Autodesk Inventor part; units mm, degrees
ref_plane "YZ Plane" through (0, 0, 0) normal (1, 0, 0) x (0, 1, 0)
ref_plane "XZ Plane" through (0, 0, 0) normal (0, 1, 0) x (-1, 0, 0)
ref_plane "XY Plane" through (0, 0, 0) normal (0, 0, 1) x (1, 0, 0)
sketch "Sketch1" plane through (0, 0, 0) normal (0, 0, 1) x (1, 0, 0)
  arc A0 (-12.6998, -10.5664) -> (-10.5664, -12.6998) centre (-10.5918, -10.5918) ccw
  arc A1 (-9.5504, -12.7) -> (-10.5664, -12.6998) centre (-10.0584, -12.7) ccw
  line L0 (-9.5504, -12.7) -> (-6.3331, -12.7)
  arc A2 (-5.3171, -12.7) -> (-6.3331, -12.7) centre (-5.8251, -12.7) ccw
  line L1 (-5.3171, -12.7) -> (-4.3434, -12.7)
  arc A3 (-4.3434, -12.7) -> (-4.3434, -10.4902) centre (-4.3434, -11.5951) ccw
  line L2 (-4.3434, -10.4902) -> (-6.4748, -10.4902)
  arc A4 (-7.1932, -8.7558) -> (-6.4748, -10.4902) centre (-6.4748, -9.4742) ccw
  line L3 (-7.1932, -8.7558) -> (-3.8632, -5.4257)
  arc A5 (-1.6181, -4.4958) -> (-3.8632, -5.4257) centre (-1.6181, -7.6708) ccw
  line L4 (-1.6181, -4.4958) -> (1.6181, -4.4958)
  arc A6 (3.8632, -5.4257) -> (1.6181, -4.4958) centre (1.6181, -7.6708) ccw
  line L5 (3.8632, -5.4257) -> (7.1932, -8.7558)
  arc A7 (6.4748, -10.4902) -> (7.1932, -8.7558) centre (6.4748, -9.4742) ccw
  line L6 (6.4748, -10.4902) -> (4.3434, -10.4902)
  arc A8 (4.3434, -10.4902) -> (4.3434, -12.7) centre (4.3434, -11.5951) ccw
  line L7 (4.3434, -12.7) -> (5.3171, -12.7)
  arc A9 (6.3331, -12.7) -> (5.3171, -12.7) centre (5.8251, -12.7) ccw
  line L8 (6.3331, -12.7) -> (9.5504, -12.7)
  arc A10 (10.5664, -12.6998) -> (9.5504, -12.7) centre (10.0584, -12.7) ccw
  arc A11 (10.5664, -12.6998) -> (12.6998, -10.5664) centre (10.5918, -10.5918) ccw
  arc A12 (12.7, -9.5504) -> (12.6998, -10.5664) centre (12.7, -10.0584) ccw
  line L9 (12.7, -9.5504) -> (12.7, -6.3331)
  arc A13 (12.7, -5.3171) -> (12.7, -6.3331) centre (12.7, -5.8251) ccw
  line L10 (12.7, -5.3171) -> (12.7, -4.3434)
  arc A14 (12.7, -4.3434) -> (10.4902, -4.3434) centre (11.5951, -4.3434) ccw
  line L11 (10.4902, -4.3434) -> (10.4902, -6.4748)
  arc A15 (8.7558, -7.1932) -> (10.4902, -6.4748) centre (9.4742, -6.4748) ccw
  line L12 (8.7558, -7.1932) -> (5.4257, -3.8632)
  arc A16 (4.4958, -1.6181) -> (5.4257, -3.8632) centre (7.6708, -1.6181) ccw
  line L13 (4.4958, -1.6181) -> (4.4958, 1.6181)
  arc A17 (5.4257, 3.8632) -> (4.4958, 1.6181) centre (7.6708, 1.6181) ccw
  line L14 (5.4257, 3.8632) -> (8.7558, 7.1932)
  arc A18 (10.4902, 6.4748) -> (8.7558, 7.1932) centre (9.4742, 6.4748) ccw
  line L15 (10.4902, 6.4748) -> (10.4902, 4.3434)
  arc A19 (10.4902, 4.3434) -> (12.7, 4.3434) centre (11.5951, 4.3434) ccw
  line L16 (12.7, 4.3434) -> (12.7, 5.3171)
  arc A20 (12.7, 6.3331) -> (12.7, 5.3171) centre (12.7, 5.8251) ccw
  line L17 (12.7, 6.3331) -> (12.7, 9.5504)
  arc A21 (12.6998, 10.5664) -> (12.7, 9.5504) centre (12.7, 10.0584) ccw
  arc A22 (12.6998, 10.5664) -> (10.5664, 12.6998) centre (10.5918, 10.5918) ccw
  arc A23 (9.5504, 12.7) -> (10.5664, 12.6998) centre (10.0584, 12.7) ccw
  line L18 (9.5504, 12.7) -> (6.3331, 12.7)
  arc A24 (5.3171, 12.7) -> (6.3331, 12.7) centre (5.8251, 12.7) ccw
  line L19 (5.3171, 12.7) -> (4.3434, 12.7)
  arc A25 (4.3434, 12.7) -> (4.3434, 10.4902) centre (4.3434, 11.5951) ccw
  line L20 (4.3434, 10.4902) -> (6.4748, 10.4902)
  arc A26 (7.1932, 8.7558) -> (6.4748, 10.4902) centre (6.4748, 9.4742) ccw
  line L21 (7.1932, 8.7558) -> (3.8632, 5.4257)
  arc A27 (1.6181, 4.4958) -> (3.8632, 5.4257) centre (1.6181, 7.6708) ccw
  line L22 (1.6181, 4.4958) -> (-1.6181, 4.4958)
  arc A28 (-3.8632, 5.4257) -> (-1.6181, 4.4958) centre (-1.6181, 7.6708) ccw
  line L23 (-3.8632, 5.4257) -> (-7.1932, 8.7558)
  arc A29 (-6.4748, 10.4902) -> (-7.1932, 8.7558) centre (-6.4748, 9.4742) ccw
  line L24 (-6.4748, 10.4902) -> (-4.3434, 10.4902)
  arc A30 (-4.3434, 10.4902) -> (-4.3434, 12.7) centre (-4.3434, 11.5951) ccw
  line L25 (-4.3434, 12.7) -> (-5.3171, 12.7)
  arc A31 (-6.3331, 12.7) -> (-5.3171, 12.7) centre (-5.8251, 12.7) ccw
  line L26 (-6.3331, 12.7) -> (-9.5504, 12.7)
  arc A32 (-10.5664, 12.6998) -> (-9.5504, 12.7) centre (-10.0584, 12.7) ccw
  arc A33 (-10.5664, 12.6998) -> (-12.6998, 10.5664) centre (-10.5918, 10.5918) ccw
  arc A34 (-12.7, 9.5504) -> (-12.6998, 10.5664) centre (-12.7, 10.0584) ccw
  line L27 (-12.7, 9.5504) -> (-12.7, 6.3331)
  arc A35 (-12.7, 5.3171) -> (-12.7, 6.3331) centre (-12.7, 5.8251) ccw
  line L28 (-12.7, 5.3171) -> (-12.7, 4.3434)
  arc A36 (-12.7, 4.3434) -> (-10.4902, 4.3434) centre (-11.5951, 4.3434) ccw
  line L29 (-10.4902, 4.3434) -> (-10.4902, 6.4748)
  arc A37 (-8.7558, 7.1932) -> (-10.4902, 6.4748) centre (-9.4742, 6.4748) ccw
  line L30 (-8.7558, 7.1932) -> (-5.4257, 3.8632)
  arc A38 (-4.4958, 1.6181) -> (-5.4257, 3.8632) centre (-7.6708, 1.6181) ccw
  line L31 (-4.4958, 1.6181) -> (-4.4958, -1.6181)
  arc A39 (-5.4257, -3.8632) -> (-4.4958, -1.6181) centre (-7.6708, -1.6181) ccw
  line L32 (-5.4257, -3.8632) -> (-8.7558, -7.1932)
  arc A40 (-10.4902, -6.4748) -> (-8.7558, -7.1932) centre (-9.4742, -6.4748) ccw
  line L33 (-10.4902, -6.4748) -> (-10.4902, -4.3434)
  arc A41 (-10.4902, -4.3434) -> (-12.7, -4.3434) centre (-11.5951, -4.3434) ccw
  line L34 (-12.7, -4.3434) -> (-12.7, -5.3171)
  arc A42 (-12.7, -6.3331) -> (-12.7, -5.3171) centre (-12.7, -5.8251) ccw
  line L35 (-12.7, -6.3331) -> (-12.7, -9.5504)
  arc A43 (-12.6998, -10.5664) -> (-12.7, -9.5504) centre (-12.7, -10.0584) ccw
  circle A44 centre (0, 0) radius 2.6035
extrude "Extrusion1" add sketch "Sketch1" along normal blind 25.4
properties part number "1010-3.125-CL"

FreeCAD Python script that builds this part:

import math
import FreeCAD as App
import Part
import Sketcher

V = App.Vector
Q = App.Units.Quantity

doc = App.newDocument("Part")
body = doc.addObject("PartDesign::Body", "Body")

# Sketch on XY plane
sketch1 = body.newObject("Sketcher::SketchObject", "Sketch")
sketch1.AttachmentSupport = (doc.getObject("XY_Plane"), [""])
sketch1.MapMode = "FlatFace"
sketch1.addGeometry([
    Part.ArcOfCircle(Part.Circle(V(-12.7, -10.1, 0), V(0, 0, 1), 0.5), math.radians(-90), math.radians(90)),  # 0
    Part.ArcOfCircle(Part.Circle(V(-10.6, -10.6, 0), V(0, 0, 1), 2.1), math.radians(179), math.radians(271)),  # 1
    Part.ArcOfCircle(Part.Circle(V(-10.1, -12.7, 0), V(0, 0, 1), 0.5), math.radians(0), math.radians(180)),  # 2
    Part.LineSegment(V(-9.6, -12.7, 0), V(-6.3, -12.7, 0)),  # 3
    Part.ArcOfCircle(Part.Circle(V(-5.8, -12.7, 0), V(0, 0, 1), 0.5), math.radians(0), math.radians(180)),  # 4
    Part.LineSegment(V(-5.3, -12.7, 0), V(-4.3, -12.7, 0)),  # 5
    Part.ArcOfCircle(Part.Circle(V(-4.3, -11.6, 0), V(0, 0, 1), 1.1), math.radians(-90), math.radians(90)),  # 6
    Part.LineSegment(V(-4.3, -10.5, 0), V(-6.5, -10.5, 0)),  # 7
    Part.ArcOfCircle(Part.Circle(V(-6.5, -9.5, 0), V(0, 0, 1), 1), math.radians(135), math.radians(270)),  # 8
    Part.LineSegment(V(-7.2, -8.8, 0), V(-3.9, -5.4, 0)),  # 9
    Part.ArcOfCircle(Part.Circle(V(-1.6, -7.7, 0), V(0, 0, 1), 3.2), math.radians(90), math.radians(135)),  # 10
    Part.LineSegment(V(-1.6, -4.5, 0), V(1.6, -4.5, 0)),  # 11
    Part.ArcOfCircle(Part.Circle(V(1.6, -7.7, 0), V(0, 0, 1), 3.2), math.radians(45), math.radians(90)),  # 12
    Part.LineSegment(V(3.9, -5.4, 0), V(7.2, -8.8, 0)),  # 13
    Part.ArcOfCircle(Part.Circle(V(6.5, -9.5, 0), V(0, 0, 1), 1), math.radians(-90), math.radians(45)),  # 14
    Part.LineSegment(V(6.5, -10.5, 0), V(4.3, -10.5, 0)),  # 15
    Part.ArcOfCircle(Part.Circle(V(4.3, -11.6, 0), V(0, 0, 1), 1.1), math.radians(90), math.radians(270)),  # 16
    Part.LineSegment(V(4.3, -12.7, 0), V(5.3, -12.7, 0)),  # 17
    Part.ArcOfCircle(Part.Circle(V(5.8, -12.7, 0), V(0, 0, 1), 0.5), math.radians(0), math.radians(180)),  # 18
    Part.LineSegment(V(6.3, -12.7, 0), V(9.6, -12.7, 0)),  # 19
    Part.ArcOfCircle(Part.Circle(V(10.1, -12.7, 0), V(0, 0, 1), 0.5), math.radians(0), math.radians(180)),  # 20
    Part.ArcOfCircle(Part.Circle(V(10.6, -10.6, 0), V(0, 0, 1), 2.1), math.radians(-91), math.radians(1)),  # 21
    Part.ArcOfCircle(Part.Circle(V(12.7, -10.1, 0), V(0, 0, 1), 0.5), math.radians(90), math.radians(270)),  # 22
    Part.LineSegment(V(12.7, -9.6, 0), V(12.7, -6.3, 0)),  # 23
    Part.ArcOfCircle(Part.Circle(V(12.7, -5.8, 0), V(0, 0, 1), 0.5), math.radians(90), math.radians(270)),  # 24
    Part.LineSegment(V(12.7, -5.3, 0), V(12.7, -4.3, 0)),  # 25
    Part.ArcOfCircle(Part.Circle(V(11.6, -4.3, 0), V(0, 0, 1), 1.1), math.radians(0), math.radians(180)),  # 26
    Part.LineSegment(V(10.5, -4.3, 0), V(10.5, -6.5, 0)),  # 27
    Part.ArcOfCircle(Part.Circle(V(9.5, -6.5, 0), V(0, 0, 1), 1), math.radians(-135), math.radians(0)),  # 28
    Part.LineSegment(V(8.8, -7.2, 0), V(5.4, -3.9, 0)),  # 29
    Part.ArcOfCircle(Part.Circle(V(7.7, -1.6, 0), V(0, 0, 1), 3.2), math.radians(180), math.radians(225)),  # 30
    Part.LineSegment(V(4.5, -1.6, 0), V(4.5, 1.6, 0)),  # 31
    Part.ArcOfCircle(Part.Circle(V(7.7, 1.6, 0), V(0, 0, 1), 3.2), math.radians(135), math.radians(180)),  # 32
    Part.LineSegment(V(5.4, 3.9, 0), V(8.8, 7.2, 0)),  # 33
    Part.ArcOfCircle(Part.Circle(V(9.5, 6.5, 0), V(0, 0, 1), 1), math.radians(0), math.radians(135)),  # 34
    Part.LineSegment(V(10.5, 6.5, 0), V(10.5, 4.3, 0)),  # 35
    Part.ArcOfCircle(Part.Circle(V(11.6, 4.3, 0), V(0, 0, 1), 1.1), math.radians(180), math.radians(360)),  # 36
    Part.LineSegment(V(12.7, 4.3, 0), V(12.7, 5.3, 0)),  # 37
    Part.ArcOfCircle(Part.Circle(V(12.7, 5.8, 0), V(0, 0, 1), 0.5), math.radians(90), math.radians(270)),  # 38
    Part.LineSegment(V(12.7, 6.3, 0), V(12.7, 9.6, 0)),  # 39
    Part.ArcOfCircle(Part.Circle(V(12.7, 10.1, 0), V(0, 0, 1), 0.5), math.radians(90), math.radians(270)),  # 40
    Part.ArcOfCircle(Part.Circle(V(10.6, 10.6, 0), V(0, 0, 1), 2.1), math.radians(-1), math.radians(91)),  # 41
    Part.ArcOfCircle(Part.Circle(V(10.1, 12.7, 0), V(0, 0, 1), 0.5), math.radians(180), math.radians(360)),  # 42
    Part.LineSegment(V(9.6, 12.7, 0), V(6.3, 12.7, 0)),  # 43
    Part.ArcOfCircle(Part.Circle(V(5.8, 12.7, 0), V(0, 0, 1), 0.5), math.radians(180), math.radians(360)),  # 44
    Part.LineSegment(V(5.3, 12.7, 0), V(4.3, 12.7, 0)),  # 45
    Part.ArcOfCircle(Part.Circle(V(4.3, 11.6, 0), V(0, 0, 1), 1.1), math.radians(90), math.radians(270)),  # 46
    Part.LineSegment(V(4.3, 10.5, 0), V(6.5, 10.5, 0)),  # 47
    Part.ArcOfCircle(Part.Circle(V(6.5, 9.5, 0), V(0, 0, 1), 1), math.radians(-45), math.radians(90)),  # 48
    Part.LineSegment(V(7.2, 8.8, 0), V(3.9, 5.4, 0)),  # 49
    Part.ArcOfCircle(Part.Circle(V(1.6, 7.7, 0), V(0, 0, 1), 3.2), math.radians(-90), math.radians(-45)),  # 50
    Part.LineSegment(V(1.6, 4.5, 0), V(-1.6, 4.5, 0)),  # 51
    Part.ArcOfCircle(Part.Circle(V(-1.6, 7.7, 0), V(0, 0, 1), 3.2), math.radians(-135), math.radians(-90)),  # 52
    Part.LineSegment(V(-3.9, 5.4, 0), V(-7.2, 8.8, 0)),  # 53
    Part.ArcOfCircle(Part.Circle(V(-6.5, 9.5, 0), V(0, 0, 1), 1), math.radians(90), math.radians(225)),  # 54
    Part.LineSegment(V(-6.5, 10.5, 0), V(-4.3, 10.5, 0)),  # 55
    Part.ArcOfCircle(Part.Circle(V(-4.3, 11.6, 0), V(0, 0, 1), 1.1), math.radians(-90), math.radians(90)),  # 56
    Part.LineSegment(V(-4.3, 12.7, 0), V(-5.3, 12.7, 0)),  # 57
    Part.ArcOfCircle(Part.Circle(V(-5.8, 12.7, 0), V(0, 0, 1), 0.5), math.radians(180), math.radians(360)),  # 58
    Part.LineSegment(V(-6.3, 12.7, 0), V(-9.6, 12.7, 0)),  # 59
    Part.ArcOfCircle(Part.Circle(V(-10.1, 12.7, 0), V(0, 0, 1), 0.5), math.radians(-180), math.radians(0)),  # 60
    Part.ArcOfCircle(Part.Circle(V(-10.6, 10.6, 0), V(0, 0, 1), 2.1), math.radians(89), math.radians(181)),  # 61
    Part.ArcOfCircle(Part.Circle(V(-12.7, 10.1, 0), V(0, 0, 1), 0.5), math.radians(-90), math.radians(90)),  # 62
    Part.LineSegment(V(-12.7, 9.6, 0), V(-12.7, 6.3, 0)),  # 63
    Part.ArcOfCircle(Part.Circle(V(-12.7, 5.8, 0), V(0, 0, 1), 0.5), math.radians(-90), math.radians(90)),  # 64
    Part.LineSegment(V(-12.7, 5.3, 0), V(-12.7, 4.3, 0)),  # 65
    Part.ArcOfCircle(Part.Circle(V(-11.6, 4.3, 0), V(0, 0, 1), 1.1), math.radians(180), math.radians(360)),  # 66
    Part.LineSegment(V(-10.5, 4.3, 0), V(-10.5, 6.5, 0)),  # 67
    Part.ArcOfCircle(Part.Circle(V(-9.5, 6.5, 0), V(0, 0, 1), 1), math.radians(45), math.radians(180)),  # 68
    Part.LineSegment(V(-8.8, 7.2, 0), V(-5.4, 3.9, 0)),  # 69
    Part.ArcOfCircle(Part.Circle(V(-7.7, 1.6, 0), V(0, 0, 1), 3.2), math.radians(0), math.radians(45)),  # 70
    Part.LineSegment(V(-4.5, 1.6, 0), V(-4.5, -1.6, 0)),  # 71
    Part.ArcOfCircle(Part.Circle(V(-7.7, -1.6, 0), V(0, 0, 1), 3.2), math.radians(-45), math.radians(0)),  # 72
    Part.LineSegment(V(-5.4, -3.9, 0), V(-8.8, -7.2, 0)),  # 73
    Part.ArcOfCircle(Part.Circle(V(-9.5, -6.5, 0), V(0, 0, 1), 1), math.radians(180), math.radians(315)),  # 74
    Part.LineSegment(V(-10.5, -6.5, 0), V(-10.5, -4.3, 0)),  # 75
    Part.ArcOfCircle(Part.Circle(V(-11.6, -4.3, 0), V(0, 0, 1), 1.1), math.radians(0), math.radians(180)),  # 76
    Part.LineSegment(V(-12.7, -4.3, 0), V(-12.7, -5.3, 0)),  # 77
    Part.ArcOfCircle(Part.Circle(V(-12.7, -5.8, 0), V(0, 0, 1), 0.5), math.radians(-90), math.radians(90)),  # 78
    Part.LineSegment(V(-12.7, -6.3, 0), V(-12.7, -9.6, 0)),  # 79
    Part.Circle(V(0, 0, 0), V(0, 0, 1), 2.6),  # 80
], False)
sketch1.addConstraint([
    Sketcher.Constraint("Coincident", 0, 1, 1, 1),
    Sketcher.Constraint("Coincident", 1, 2, 2, 2),
    Sketcher.Constraint("Coincident", 2, 1, 3, 1),
    Sketcher.Constraint("Coincident", 3, 2, 4, 2),
    Sketcher.Constraint("Coincident", 4, 1, 5, 1),
    Sketcher.Constraint("Tangent", 5, 2, 6, 1),
    Sketcher.Constraint("Tangent", 6, 2, 7, 1),
    Sketcher.Constraint("Tangent", 7, 2, 8, 2),
    Sketcher.Constraint("Tangent", 8, 1, 9, 1),
    Sketcher.Constraint("Tangent", 9, 2, 10, 2),
    Sketcher.Constraint("Tangent", 10, 1, 11, 1),
    Sketcher.Constraint("Tangent", 11, 2, 12, 2),
    Sketcher.Constraint("Tangent", 12, 1, 13, 1),
    Sketcher.Constraint("Tangent", 13, 2, 14, 2),
    Sketcher.Constraint("Tangent", 14, 1, 15, 1),
    Sketcher.Constraint("Tangent", 15, 2, 16, 1),
    Sketcher.Constraint("Tangent", 16, 2, 17, 1),
    Sketcher.Constraint("Coincident", 17, 2, 18, 2),
    Sketcher.Constraint("Coincident", 18, 1, 19, 1),
    Sketcher.Constraint("Coincident", 19, 2, 20, 2),
    Sketcher.Constraint("Coincident", 20, 1, 21, 1),
    Sketcher.Constraint("Coincident", 21, 2, 22, 2),
    Sketcher.Constraint("Coincident", 22, 1, 23, 1),
    Sketcher.Constraint("Coincident", 23, 2, 24, 2),
    Sketcher.Constraint("Coincident", 24, 1, 25, 1),
    Sketcher.Constraint("Tangent", 25, 2, 26, 1),
    Sketcher.Constraint("Tangent", 26, 2, 27, 1),
    Sketcher.Constraint("Tangent", 27, 2, 28, 2),
    Sketcher.Constraint("Tangent", 28, 1, 29, 1),
    Sketcher.Constraint("Tangent", 29, 2, 30, 2),
    Sketcher.Constraint("Tangent", 30, 1, 31, 1),
    Sketcher.Constraint("Tangent", 31, 2, 32, 2),
    Sketcher.Constraint("Tangent", 32, 1, 33, 1),
    Sketcher.Constraint("Tangent", 33, 2, 34, 2),
    Sketcher.Constraint("Tangent", 34, 1, 35, 1),
    Sketcher.Constraint("Tangent", 35, 2, 36, 1),
    Sketcher.Constraint("Tangent", 36, 2, 37, 1),
    Sketcher.Constraint("Coincident", 37, 2, 38, 2),
    Sketcher.Constraint("Coincident", 38, 1, 39, 1),
    Sketcher.Constraint("Coincident", 39, 2, 40, 2),
    Sketcher.Constraint("Coincident", 40, 1, 41, 1),
    Sketcher.Constraint("Coincident", 41, 2, 42, 2),
    Sketcher.Constraint("Coincident", 42, 1, 43, 1),
    Sketcher.Constraint("Coincident", 43, 2, 44, 2),
    Sketcher.Constraint("Coincident", 44, 1, 45, 1),
    Sketcher.Constraint("Tangent", 45, 2, 46, 1),
    Sketcher.Constraint("Tangent", 46, 2, 47, 1),
    Sketcher.Constraint("Tangent", 47, 2, 48, 2),
    Sketcher.Constraint("Tangent", 48, 1, 49, 1),
    Sketcher.Constraint("Tangent", 49, 2, 50, 2),
    Sketcher.Constraint("Tangent", 50, 1, 51, 1),
    Sketcher.Constraint("Tangent", 51, 2, 52, 2),
    Sketcher.Constraint("Tangent", 52, 1, 53, 1),
    Sketcher.Constraint("Tangent", 53, 2, 54, 2),
    Sketcher.Constraint("Tangent", 54, 1, 55, 1),
    Sketcher.Constraint("Tangent", 55, 2, 56, 1),
    Sketcher.Constraint("Tangent", 56, 2, 57, 1),
    Sketcher.Constraint("Coincident", 57, 2, 58, 2),
    Sketcher.Constraint("Coincident", 58, 1, 59, 1),
    Sketcher.Constraint("Coincident", 59, 2, 60, 2),
    Sketcher.Constraint("Coincident", 60, 1, 61, 1),
    Sketcher.Constraint("Coincident", 61, 2, 62, 2),
    Sketcher.Constraint("Coincident", 62, 1, 63, 1),
    Sketcher.Constraint("Coincident", 63, 2, 64, 2),
    Sketcher.Constraint("Coincident", 64, 1, 65, 1),
    Sketcher.Constraint("Tangent", 65, 2, 66, 1),
    Sketcher.Constraint("Tangent", 66, 2, 67, 1),
    Sketcher.Constraint("Tangent", 67, 2, 68, 2),
    Sketcher.Constraint("Tangent", 68, 1, 69, 1),
    Sketcher.Constraint("Tangent", 69, 2, 70, 2),
    Sketcher.Constraint("Tangent", 70, 1, 71, 1),
    Sketcher.Constraint("Tangent", 71, 2, 72, 2),
    Sketcher.Constraint("Tangent", 72, 1, 73, 1),
    Sketcher.Constraint("Tangent", 73, 2, 74, 2),
    Sketcher.Constraint("Tangent", 74, 1, 75, 1),
    Sketcher.Constraint("Tangent", 75, 2, 76, 1),
    Sketcher.Constraint("Tangent", 76, 2, 77, 1),
    Sketcher.Constraint("Coincident", 77, 2, 78, 2),
    Sketcher.Constraint("Coincident", 78, 1, 79, 1),
    Sketcher.Constraint("Coincident", 79, 2, 0, 2),
    Sketcher.Constraint("Horizontal", 3),
    Sketcher.Constraint("Horizontal", 5),
    Sketcher.Constraint("Horizontal", 7),
    Sketcher.Constraint("Horizontal", 11),
    Sketcher.Constraint("Horizontal", 15),
    Sketcher.Constraint("Horizontal", 17),
    Sketcher.Constraint("Horizontal", 19),
    Sketcher.Constraint("Vertical", 23),
    Sketcher.Constraint("Vertical", 25),
    Sketcher.Constraint("Vertical", 27),
    Sketcher.Constraint("Vertical", 31),
    Sketcher.Constraint("Vertical", 35),
    Sketcher.Constraint("Vertical", 37),
    Sketcher.Constraint("Vertical", 39),
    Sketcher.Constraint("Horizontal", 43),
    Sketcher.Constraint("Horizontal", 45),
    Sketcher.Constraint("Horizontal", 47),
    Sketcher.Constraint("Horizontal", 51),
    Sketcher.Constraint("Horizontal", 55),
    Sketcher.Constraint("Horizontal", 57),
    Sketcher.Constraint("Horizontal", 59),
    Sketcher.Constraint("Vertical", 63),
    Sketcher.Constraint("Vertical", 65),
    Sketcher.Constraint("Vertical", 67),
    Sketcher.Constraint("Vertical", 71),
    Sketcher.Constraint("Vertical", 75),
    Sketcher.Constraint("Vertical", 77),
    Sketcher.Constraint("Vertical", 79),
    Sketcher.Constraint("Coincident", 80, 3, -1, 1),
    Sketcher.Constraint("Equal", 0, 2),
    Sketcher.Constraint("Equal", 2, 4),
    Sketcher.Constraint("Equal", 10, 12),
    Sketcher.Constraint("Equal", 8, 14),
    Sketcher.Constraint("Equal", 6, 16),
    Sketcher.Constraint("Equal", 4, 18),
    Sketcher.Constraint("Equal", 18, 20),
    Sketcher.Constraint("Equal", 1, 21),
    Sketcher.Constraint("Equal", 20, 22),
    Sketcher.Constraint("Equal", 22, 24),
    Sketcher.Constraint("Equal", 16, 26),
    Sketcher.Constraint("Equal", 14, 28),
    Sketcher.Constraint("Equal", 12, 30),
    Sketcher.Constraint("Equal", 30, 32),
    Sketcher.Constraint("Equal", 28, 34),
    Sketcher.Constraint("Equal", 26, 36),
    Sketcher.Constraint("Equal", 24, 38),
    Sketcher.Constraint("Equal", 38, 40),
    Sketcher.Constraint("Equal", 21, 41),
    Sketcher.Constraint("Equal", 40, 42),
    Sketcher.Constraint("Equal", 42, 44),
    Sketcher.Constraint("Equal", 36, 46),
    Sketcher.Constraint("Equal", 34, 48),
    Sketcher.Constraint("Equal", 32, 50),
    Sketcher.Constraint("Equal", 50, 52),
    Sketcher.Constraint("Equal", 48, 54),
    Sketcher.Constraint("Equal", 46, 56),
    Sketcher.Constraint("Equal", 44, 58),
    Sketcher.Constraint("Equal", 58, 60),
    Sketcher.Constraint("Equal", 41, 61),
    Sketcher.Constraint("Equal", 60, 62),
    Sketcher.Constraint("Equal", 62, 64),
    Sketcher.Constraint("Equal", 56, 66),
    Sketcher.Constraint("Equal", 54, 68),
    Sketcher.Constraint("Equal", 52, 70),
    Sketcher.Constraint("Equal", 70, 72),
    Sketcher.Constraint("Equal", 68, 74),
    Sketcher.Constraint("Equal", 66, 76),
    Sketcher.Constraint("Equal", 64, 78),
    Sketcher.Constraint("Symmetric", 0, 3, 40, 3, -1, 1),
    Sketcher.Constraint("Symmetric", 1, 3, 41, 3, -1, 1),
    Sketcher.Constraint("Symmetric", 2, 3, 42, 3, -1, 1),
    Sketcher.Constraint("Symmetric", 4, 3, 44, 3, -1, 1),
    Sketcher.Constraint("Symmetric", 6, 3, 46, 3, -1, 1),
    Sketcher.Constraint("Symmetric", 10, 3, 50, 3, -1, 1),
    Sketcher.Constraint("Symmetric", 14, 3, 54, 3, -1, 1),
    Sketcher.Constraint("Symmetric", 18, 3, 58, 3, -1, 1),
    Sketcher.Constraint("Symmetric", 20, 3, 60, 3, -1, 1),
    Sketcher.Constraint("Symmetric", 21, 3, 61, 3, -1, 1),
    Sketcher.Constraint("Symmetric", 22, 3, 62, 3, -1, 1),
    Sketcher.Constraint("Symmetric", 24, 3, 64, 3, -1, 1),
    Sketcher.Constraint("Symmetric", 26, 3, 66, 3, -1, 1),
    Sketcher.Constraint("Symmetric", 30, 3, 70, 3, -1, 1),
    Sketcher.Constraint("Symmetric", 34, 3, 74, 3, -1, 1),
    Sketcher.Constraint("Symmetric", 38, 3, 78, 3, -1, 1),
    Sketcher.Constraint("Symmetric", 8, 3, 14, 3, -2),
    Sketcher.Constraint("Symmetric", 4, 3, 18, 3, -2),
    Sketcher.Constraint("Symmetric", 2, 3, 20, 3, -2),
    Sketcher.Constraint("Symmetric", 1, 3, 21, 3, -2),
    Sketcher.Constraint("Symmetric", 0, 3, 22, 3, -2),
    Sketcher.Constraint("Symmetric", 38, 3, 64, 3, -2),
    Sketcher.Constraint("Symmetric", 36, 3, 66, 3, -2),
    Sketcher.Constraint("Symmetric", 49, 2, 52, 1, -2),
    Sketcher.Constraint("Symmetric", 33, 2, 68, 1, -2),
    Sketcher.Constraint("Symmetric", 29, 2, 72, 1, -2),
    Sketcher.Constraint("Perpendicular", 9, 13),
    Sketcher.Constraint("Parallel", 13, 29),
    Sketcher.Constraint("Perpendicular", 29, 33),
    Sketcher.Constraint("Horizontal", 2, 3, 4, 3),
    Sketcher.Constraint("Horizontal", 26, 3, 76, 3),
    Sketcher.Constraint("Horizontal", 20, 3, 1, 2),
    Sketcher.Constraint("Horizontal", 1, 2, 2, 1),
    Sketcher.Constraint("Horizontal", 3, 2, 4, 1),
    Sketcher.Constraint("Horizontal", 17, 2, 18, 1),
    Sketcher.Constraint("Horizontal", 41, 2, 42, 1),
    Sketcher.Constraint("Horizontal", 57, 2, 58, 1),
    Sketcher.Constraint("Vertical", 22, 3, 24, 3),
    Sketcher.Constraint("Vertical", 16, 3, 46, 3),
    Sketcher.Constraint("Vertical", 6, 3, 56, 3),
    Sketcher.Constraint("Vertical", 78, 3, 0, 1),
    Sketcher.Constraint("Vertical", 21, 2, 22, 1),
    Sketcher.Constraint("Vertical", 23, 2, 24, 1),
    Sketcher.Constraint("Vertical", 37, 2, 38, 1),
    Sketcher.Constraint("Vertical", 61, 2, 62, 1),
    Sketcher.Constraint("Vertical", 77, 2, 78, 1),
    Sketcher.Constraint("Equal", 59, 23),
    Sketcher.Constraint("Equal", 57, 25),
    Sketcher.Constraint("Equal", 55, 27),
    Sketcher.Constraint("Equal", 51, 31),
    Sketcher.Constraint("Equal", 13, 29),
    Sketcher.Constraint("Radius", 0, Q("0.02 in")),
    Sketcher.Constraint("Radius", 8, Q("0.04 in")),
    Sketcher.Constraint("Diameter", 80, Q("0.205 in")),
    Sketcher.Constraint("Radius", 1, Q("0.083 in")),
    Sketcher.Constraint("Radius", 10, Q("0.125 in")),
    Sketcher.Constraint("DistanceX", 0, 3, -1, 1, Q("0.5 in")),
    Sketcher.Constraint("DistanceY", 2, 3, -1, 1, Q("0.5 in")),
    Sketcher.Constraint("Radius", 6, Q("0.0435 in")),
    Sketcher.Constraint("DistanceX", 11, 1, 11, 2, Q("0.1274 in")),
    Sketcher.Constraint("DistanceY", 0, 3, -1, 1, Q("0.396 in")),
    Sketcher.Constraint("DistanceX", 6, 3, -1, 1, Q("0.171 in")),
    Sketcher.Constraint("DistanceY", 10, 3, -1, 1, Q("0.302 in")),
    Sketcher.Constraint("DistanceX", 3, 1, 3, 2, 3.2173),
])
pad1 = body.newObject("PartDesign::Pad", "Pad")
pad1.Profile = sketch1
pad1.Length = Q("1 in")

doc.recompute()
